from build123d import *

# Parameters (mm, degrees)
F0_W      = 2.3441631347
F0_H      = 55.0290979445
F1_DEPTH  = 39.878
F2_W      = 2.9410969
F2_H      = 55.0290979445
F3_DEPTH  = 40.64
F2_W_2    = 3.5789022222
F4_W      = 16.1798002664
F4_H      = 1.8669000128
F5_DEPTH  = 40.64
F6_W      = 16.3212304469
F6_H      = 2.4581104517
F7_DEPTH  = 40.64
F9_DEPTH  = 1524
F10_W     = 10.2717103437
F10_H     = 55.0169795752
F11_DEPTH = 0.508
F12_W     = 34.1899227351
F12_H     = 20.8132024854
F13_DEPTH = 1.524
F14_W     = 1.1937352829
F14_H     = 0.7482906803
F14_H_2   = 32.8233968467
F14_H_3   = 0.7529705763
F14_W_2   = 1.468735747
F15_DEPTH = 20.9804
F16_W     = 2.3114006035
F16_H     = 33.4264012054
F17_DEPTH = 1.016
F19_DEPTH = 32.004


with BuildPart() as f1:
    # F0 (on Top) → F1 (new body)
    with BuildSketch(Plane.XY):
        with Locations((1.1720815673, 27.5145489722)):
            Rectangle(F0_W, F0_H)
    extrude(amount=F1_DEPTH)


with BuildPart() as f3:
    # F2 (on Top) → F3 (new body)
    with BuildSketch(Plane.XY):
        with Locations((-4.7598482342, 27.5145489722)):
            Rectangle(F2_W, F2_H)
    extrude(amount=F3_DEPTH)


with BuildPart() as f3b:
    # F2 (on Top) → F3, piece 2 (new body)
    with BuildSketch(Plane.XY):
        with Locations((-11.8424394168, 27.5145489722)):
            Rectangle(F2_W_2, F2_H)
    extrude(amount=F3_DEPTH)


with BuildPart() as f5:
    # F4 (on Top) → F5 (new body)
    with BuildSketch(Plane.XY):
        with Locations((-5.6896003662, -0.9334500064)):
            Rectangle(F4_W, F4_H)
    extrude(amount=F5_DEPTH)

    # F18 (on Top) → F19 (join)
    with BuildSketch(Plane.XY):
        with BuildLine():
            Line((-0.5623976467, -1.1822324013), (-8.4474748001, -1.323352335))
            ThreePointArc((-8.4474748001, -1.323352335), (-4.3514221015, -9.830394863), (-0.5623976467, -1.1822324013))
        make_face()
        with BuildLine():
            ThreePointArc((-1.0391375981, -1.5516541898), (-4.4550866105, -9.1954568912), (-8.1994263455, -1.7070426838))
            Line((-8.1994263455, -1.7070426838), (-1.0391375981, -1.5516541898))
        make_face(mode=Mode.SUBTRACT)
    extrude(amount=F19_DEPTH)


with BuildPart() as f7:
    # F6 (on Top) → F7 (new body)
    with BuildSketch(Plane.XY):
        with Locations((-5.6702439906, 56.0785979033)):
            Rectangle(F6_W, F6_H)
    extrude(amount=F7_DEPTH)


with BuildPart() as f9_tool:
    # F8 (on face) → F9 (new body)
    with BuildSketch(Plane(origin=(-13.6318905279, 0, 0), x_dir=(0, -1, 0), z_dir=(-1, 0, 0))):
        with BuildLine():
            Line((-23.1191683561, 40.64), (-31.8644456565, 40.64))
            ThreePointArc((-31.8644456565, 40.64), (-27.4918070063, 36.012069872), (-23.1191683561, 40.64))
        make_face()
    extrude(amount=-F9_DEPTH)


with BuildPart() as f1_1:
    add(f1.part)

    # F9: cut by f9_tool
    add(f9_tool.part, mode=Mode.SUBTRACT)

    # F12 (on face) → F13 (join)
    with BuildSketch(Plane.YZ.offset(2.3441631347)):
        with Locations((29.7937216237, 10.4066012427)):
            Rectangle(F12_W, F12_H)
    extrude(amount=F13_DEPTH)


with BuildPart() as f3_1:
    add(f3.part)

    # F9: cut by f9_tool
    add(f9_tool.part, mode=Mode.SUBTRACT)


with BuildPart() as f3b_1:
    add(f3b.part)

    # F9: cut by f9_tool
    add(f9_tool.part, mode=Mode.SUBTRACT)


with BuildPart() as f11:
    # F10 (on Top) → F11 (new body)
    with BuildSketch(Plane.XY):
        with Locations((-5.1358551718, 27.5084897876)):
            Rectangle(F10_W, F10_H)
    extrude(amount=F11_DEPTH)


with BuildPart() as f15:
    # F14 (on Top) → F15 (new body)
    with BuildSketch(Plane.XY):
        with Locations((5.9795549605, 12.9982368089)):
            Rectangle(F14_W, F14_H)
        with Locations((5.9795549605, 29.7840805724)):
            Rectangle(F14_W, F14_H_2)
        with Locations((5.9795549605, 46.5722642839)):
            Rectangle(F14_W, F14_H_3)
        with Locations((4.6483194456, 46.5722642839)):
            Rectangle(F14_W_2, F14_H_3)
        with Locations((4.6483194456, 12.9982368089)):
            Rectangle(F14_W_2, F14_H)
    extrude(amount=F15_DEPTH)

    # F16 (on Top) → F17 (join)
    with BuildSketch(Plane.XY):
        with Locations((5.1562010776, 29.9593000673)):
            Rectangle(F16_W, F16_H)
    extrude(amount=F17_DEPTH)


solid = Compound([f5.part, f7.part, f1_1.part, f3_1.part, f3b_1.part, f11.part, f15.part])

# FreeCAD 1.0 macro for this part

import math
import FreeCAD as App
import Part
import Sketcher

V = App.Vector
Q = App.Units.Quantity

doc = App.newDocument("Part")
body = doc.addObject("PartDesign::Body", "Body")

sketch1 = body.newObject("Sketcher::SketchObject", "Sketch")
sketch1.AttachmentSupport = (doc.getObject("XY_Plane"), [""])
sketch1.MapMode = "FlatFace"
sketch1.addGeometry(Part.LineSegment(V(0, 55, 0), V(0, 0, 0)), False)
sketch1.addGeometry(Part.LineSegment(V(0, 0, 0), V(2.3, 0, 0)), False)
sketch1.addGeometry(Part.LineSegment(V(2.3, 0, 0), V(2.3, 55, 0)), False)
sketch1.addGeometry(Part.LineSegment(V(2.3, 55, 0), V(0, 55, 0)), False)
sketch1.addConstraint(Sketcher.Constraint("Coincident", 0, 2, 1, 1))
sketch1.addConstraint(Sketcher.Constraint("Coincident", 1, 2, 2, 1))
sketch1.addConstraint(Sketcher.Constraint("Coincident", 2, 2, 3, 1))
sketch1.addConstraint(Sketcher.Constraint("Coincident", 3, 2, 0, 1))
sketch1.addConstraint(Sketcher.Constraint("Vertical", 0))
sketch1.addConstraint(Sketcher.Constraint("Horizontal", 1))
sketch1.addConstraint(Sketcher.Constraint("Vertical", 2))
sketch1.addConstraint(Sketcher.Constraint("Horizontal", 3))
sketch1.addConstraint(Sketcher.Constraint("Coincident", 0, 2, -1, 1))
sketch1.addConstraint(Sketcher.Constraint("DistanceY", 0, 2, 0, 1, Q("2.1664999 in")))
sketch1.addConstraint(Sketcher.Constraint("DistanceX", 1, 1, 1, 2, Q("2.344163 mm")))
pad1 = body.newObject("PartDesign::Pad", "Pad")
pad1.Profile = sketch1
pad1.Length = Q("1.57 in")
body2 = doc.addObject("PartDesign::Body", "Body001")

sketch2 = body2.newObject("Sketcher::SketchObject", "Sketch001")
sketch2.AttachmentSupport = (doc.getObject("XY_Plane001"), [""])
sketch2.MapMode = "FlatFace"
sketch2.addGeometry(Part.LineSegment(V(-6.2, 55, 0), V(-6.2, 0, 0)), False)
sketch2.addGeometry(Part.LineSegment(V(-6.2, 0, 0), V(-3.3, 0, 0)), False)
sketch2.addGeometry(Part.LineSegment(V(-3.3, 0, 0), V(-3.3, 55, 0)), False)
sketch2.addGeometry(Part.LineSegment(V(-3.3, 55, 0), V(-6.2, 55, 0)), False)
sketch2.addConstraint(Sketcher.Constraint("Coincident", 0, 2, 1, 1))
sketch2.addConstraint(Sketcher.Constraint("Coincident", 1, 2, 2, 1))
sketch2.addConstraint(Sketcher.Constraint("Coincident", 2, 2, 3, 1))
sketch2.addConstraint(Sketcher.Constraint("Coincident", 3, 2, 0, 1))
sketch2.addConstraint(Sketcher.Constraint("Vertical", 0))
sketch2.addConstraint(Sketcher.Constraint("Horizontal", 1))
sketch2.addConstraint(Sketcher.Constraint("Vertical", 2))
sketch2.addConstraint(Sketcher.Constraint("Horizontal", 3))
sketch2.addConstraint(Sketcher.Constraint("PointOnObject", 0, 2, -1))
sketch2.addConstraint(Sketcher.Constraint("DistanceY", 0, 2, 0, 1, Q("2.1664999 in")))
sketch2.addConstraint(Sketcher.Constraint("DistanceX", 1, 2, -1, 1, Q("0.1295 in")))
sketch2.addConstraint(Sketcher.Constraint("DistanceX", 1, 1, 1, 2, Q("2.941097 mm")))
pad2 = body2.newObject("PartDesign::Pad", "Pad001")
pad2.Profile = sketch2
pad2.Length = Q("1.6 in")
body3 = doc.addObject("PartDesign::Body", "Body002")

sketch3 = body3.newObject("Sketcher::SketchObject", "Sketch002")
sketch3.AttachmentSupport = (doc.getObject("XY_Plane002"), [""])
sketch3.MapMode = "FlatFace"
sketch3.addGeometry(Part.LineSegment(V(-13.6, 55, 0), V(-13.6, 0, 0)), False)
sketch3.addGeometry(Part.LineSegment(V(-13.6, 0, 0), V(-10.1, 0, 0)), False)
sketch3.addGeometry(Part.LineSegment(V(-10.1, 0, 0), V(-10.1, 55, 0)), False)
sketch3.addGeometry(Part.LineSegment(V(-10.1, 55, 0), V(-13.6, 55, 0)), False)
sketch3.addConstraint(Sketcher.Constraint("Coincident", 0, 2, 1, 1))
sketch3.addConstraint(Sketcher.Constraint("Coincident", 1, 2, 2, 1))
sketch3.addConstraint(Sketcher.Constraint("Coincident", 2, 2, 3, 1))
sketch3.addConstraint(Sketcher.Constraint("Coincident", 3, 2, 0, 1))
sketch3.addConstraint(Sketcher.Constraint("Vertical", 0))
sketch3.addConstraint(Sketcher.Constraint("Horizontal", 1))
sketch3.addConstraint(Sketcher.Constraint("Vertical", 2))
sketch3.addConstraint(Sketcher.Constraint("Horizontal", 3))
sketch3.addConstraint(Sketcher.Constraint("PointOnObject", 0, 2, -1))
sketch3.addConstraint(Sketcher.Constraint("DistanceY", 0, 2, 0, 1, Q("2.1664999 in")))
sketch3.addConstraint(Sketcher.Constraint("DistanceX", 1, 1, 1, 2, Q("3.578902 mm")))
sketch3.addConstraint(Sketcher.Constraint("DistanceX", 0, 2, -1, 1, Q("13.631891 mm")))
pad3 = body3.newObject("PartDesign::Pad", "Pad002")
pad3.Profile = sketch3
pad3.Length = Q("1.6 in")
body4 = doc.addObject("PartDesign::Body", "Body003")

sketch4 = body4.newObject("Sketcher::SketchObject", "Sketch003")
sketch4.AttachmentSupport = (doc.getObject("XY_Plane003"), [""])
sketch4.MapMode = "FlatFace"
sketch4.addGeometry(Part.LineSegment(V(-13.8, 0, 0), V(-13.8, -1.9, 0)), False)
sketch4.addGeometry(Part.LineSegment(V(-13.8, -1.9, 0), V(2.4, -1.9, 0)), False)
sketch4.addGeometry(Part.LineSegment(V(2.4, -1.9, 0), V(2.4, 0, 0)), False)
sketch4.addGeometry(Part.LineSegment(V(2.4, 0, 0), V(-13.8, 0, 0)), False)
sketch4.addConstraint(Sketcher.Constraint("Coincident", 0, 2, 1, 1))
sketch4.addConstraint(Sketcher.Constraint("Coincident", 1, 2, 2, 1))
sketch4.addConstraint(Sketcher.Constraint("Coincident", 2, 2, 3, 1))
sketch4.addConstraint(Sketcher.Constraint("Coincident", 3, 2, 0, 1))
sketch4.addConstraint(Sketcher.Constraint("Vertical", 0))
sketch4.addConstraint(Sketcher.Constraint("Horizontal", 1))
sketch4.addConstraint(Sketcher.Constraint("Vertical", 2))
sketch4.addConstraint(Sketcher.Constraint("Horizontal", 3))
sketch4.addConstraint(Sketcher.Constraint("PointOnObject", 2, 2, -1))
sketch4.addConstraint(Sketcher.Constraint("DistanceX", 1, 1, 1, 2, Q("0.637 in")))
sketch4.addConstraint(Sketcher.Constraint("DistanceY", 0, 2, 0, 1, Q("0.0735 in")))
sketch4.addConstraint(Sketcher.Constraint("DistanceX", 0, 2, -1, 1, Q("0.5425 in")))
pad4 = body4.newObject("PartDesign::Pad", "Pad003")
pad4.Profile = sketch4
pad4.Length = Q("1.6 in")

sketch5 = body4.newObject("Sketcher::SketchObject", "Sketch004")
sketch5.AttachmentSupport = (doc.getObject("XY_Plane003"), [""])
sketch5.MapMode = "FlatFace"
sketch5.addGeometry(Part.LineSegment(V(-0.6, -1.2, 0), V(-8.4, -1.3, 0)), False)
sketch5.addGeometry(Part.ArcOfCircle(Part.Circle(V(-4.4, -4.6, 0), V(0, 0, 1), 5.2), math.radians(140), math.radians(402)), False)
sketch5.addGeometry(Part.LineSegment(V(-8.2, -1.7, 0), V(-1, -1.6, 0)), False)
sketch5.addGeometry(Part.ArcOfCircle(Part.Circle(V(-4.6, -4.6, 0), V(0, 0, 1), 4.6), math.radians(142), math.radians(401)), False)
sketch5.addConstraint(Sketcher.Constraint("Coincident", 0, 1, 1, 2))
sketch5.addConstraint(Sketcher.Constraint("Coincident", 1, 1, 0, 2))
sketch5.addConstraint(Sketcher.Constraint("Coincident", 2, 1, 3, 1))
sketch5.addConstraint(Sketcher.Constraint("Coincident", 3, 2, 2, 2))
sketch5.addConstraint(Sketcher.Constraint("Radius", 1, Q("5.195691 mm")))
sketch5.addConstraint(Sketcher.Constraint("Radius", 3, Q("4.631174 mm")))
sketch5.addConstraint(Sketcher.Constraint("DistanceY", 3, 2, 1, 1, Q("0.228302 mm")))
sketch5.addConstraint(Sketcher.Constraint("Distance", 0, Q("7.88634 mm")))
sketch5.addConstraint(Sketcher.Constraint("DistanceX", 3, 3, 1, 3, Q("0.111171 mm")))
sketch5.addConstraint(Sketcher.Constraint("DistanceX", 3, 3, 0, 1, Q("3.993168 mm")))
sketch5.addConstraint(Sketcher.Constraint("DistanceY", 3, 3, 0, 1, Q("3.383141 mm")))
sketch5.addConstraint(Sketcher.Constraint("DistanceX", 1, 1, 2, 1, Q("0.248048 mm")))
sketch5.addConstraint(Sketcher.Constraint("DistanceX", 1, 3, -1, 1, Q("4.444395 mm")))
sketch5.addConstraint(Sketcher.Constraint("DistanceY", 1, 3, -1, 1, Q("4.635536 mm")))
pad5 = body4.newObject("PartDesign::Pad", "Pad004")
pad5.Profile = sketch5
pad5.Length = Q("1.26 in")
body5 = doc.addObject("PartDesign::Body", "Body004")

sketch6 = body5.newObject("Sketcher::SketchObject", "Sketch005")
sketch6.AttachmentSupport = (doc.getObject("XY_Plane004"), [""])
sketch6.MapMode = "FlatFace"
sketch6.addGeometry(Part.LineSegment(V(-13.8, 57.3, 0), V(-13.8, 54.8, 0)), False)
sketch6.addGeometry(Part.LineSegment(V(-13.8, 54.8, 0), V(2.5, 54.8, 0)), False)
sketch6.addGeometry(Part.LineSegment(V(2.5, 54.8, 0), V(2.5, 57.3, 0)), False)
sketch6.addGeometry(Part.LineSegment(V(2.5, 57.3, 0), V(-13.8, 57.3, 0)), False)
sketch6.addConstraint(Sketcher.Constraint("Coincident", 0, 2, 1, 1))
sketch6.addConstraint(Sketcher.Constraint("Coincident", 1, 2, 2, 1))
sketch6.addConstraint(Sketcher.Constraint("Coincident", 2, 2, 3, 1))
sketch6.addConstraint(Sketcher.Constraint("Coincident", 3, 2, 0, 1))
sketch6.addConstraint(Sketcher.Constraint("Vertical", 0))
sketch6.addConstraint(Sketcher.Constraint("Horizontal", 1))
sketch6.addConstraint(Sketcher.Constraint("Vertical", 2))
sketch6.addConstraint(Sketcher.Constraint("Horizontal", 3))
sketch6.addConstraint(Sketcher.Constraint("DistanceX", 1, 1, 1, 2, Q("16.32123 mm")))
sketch6.addConstraint(Sketcher.Constraint("DistanceY", 0, 2, 0, 1, Q("2.45811 mm")))
sketch6.addConstraint(Sketcher.Constraint("DistanceX", 0, 2, -1, 1, Q("13.830859 mm")))
sketch6.addConstraint(Sketcher.Constraint("DistanceY", -1, 1, 0, 2, Q("54.849543 mm")))
pad6 = body5.newObject("PartDesign::Pad", "Pad005")
pad6.Profile = sketch6
pad6.Length = Q("1.6 in")
body6 = doc.addObject("PartDesign::Body", "Body005")

sketch7 = body6.newObject("Sketcher::SketchObject", "Sketch006")
sketch7.AttachmentSupport = (doc.getObject("YZ_Plane005"), [""])
sketch7.MapMode = "FlatFace"
sketch7.AttachmentOffset = App.Placement(V(0, 0, -13.631891), App.Rotation())
sketch7.addGeometry(Part.LineSegment(V(23.1, 40.6, 0), V(31.9, 40.6, 0)), False)
sketch7.addGeometry(Part.ArcOfCircle(Part.Circle(V(27.5, 40.4, 0), V(0, 0, 1), 4.4), math.radians(177), math.radians(363)), False)
sketch7.addConstraint(Sketcher.Constraint("Coincident", 0, 1, 1, 1))
sketch7.addConstraint(Sketcher.Constraint("Coincident", 1, 2, 0, 2))
sketch7.addConstraint(Sketcher.Constraint("Horizontal", 0))
sketch7.addConstraint(Sketcher.Constraint("DistanceY", -1, 1, 0, 1, Q("1.6 in")))
sketch7.addConstraint(Sketcher.Constraint("Radius", 1, Q("4.37968 mm")))
sketch7.addConstraint(Sketcher.Constraint("DistanceX", 0, 1, 0, 2, Q("8.745277 mm")))
sketch7.addConstraint(Sketcher.Constraint("DistanceX", -1, 1, 0, 1, Q("23.119168 mm")))
pad7 = body6.newObject("PartDesign::Pad", "Pad006")
pad7.Profile = sketch7
pad7.Length = Q("60 in")
doc.recompute()

body7 = doc.addObject("PartDesign::Body", "Body006")
body7.BaseFeature = body6
boolean = body.newObject("PartDesign::Boolean", "Boolean")
boolean.Type = "Cut"
boolean.addObjects([body7])
doc.recompute()

sketch8 = body.newObject("Sketcher::SketchObject", "Sketch007")
sketch8.AttachmentSupport = (doc.getObject("YZ_Plane"), [""])
sketch8.MapMode = "FlatFace"
sketch8.AttachmentOffset = App.Placement(V(0, 0, 2.344163), App.Rotation())
sketch8.addGeometry(Part.LineSegment(V(13, 21, 0), V(13, 0, 0)), False)
sketch8.addGeometry(Part.LineSegment(V(13, 0, 0), V(47, 0, 0)), False)
sketch8.addGeometry(Part.LineSegment(V(47, 0, 0), V(47, 21, 0)), False)
sketch8.addGeometry(Part.LineSegment(V(47, 21, 0), V(13, 21, 0)), False)
sketch8.addConstraint(Sketcher.Constraint("Coincident", 0, 2, 1, 1))
sketch8.addConstraint(Sketcher.Constraint("Coincident", 1, 2, 2, 1))
sketch8.addConstraint(Sketcher.Constraint("Coincident", 2, 2, 3, 1))
sketch8.addConstraint(Sketcher.Constraint("Coincident", 3, 2, 0, 1))
sketch8.addConstraint(Sketcher.Constraint("Vertical", 0))
sketch8.addConstraint(Sketcher.Constraint("Horizontal", 1))
sketch8.addConstraint(Sketcher.Constraint("Vertical", 2))
sketch8.addConstraint(Sketcher.Constraint("Horizontal", 3))
sketch8.addConstraint(Sketcher.Constraint("PointOnObject", 0, 2, -1))
sketch8.addConstraint(Sketcher.Constraint("DistanceX", 1, 1, 1, 2, Q("34.189923 mm")))
sketch8.addConstraint(Sketcher.Constraint("DistanceY", 0, 2, 0, 1, Q("20.813202 mm")))
sketch8.addConstraint(Sketcher.Constraint("DistanceX", -1, 1, 0, 2, Q("12.69876 mm")))
pad8 = body.newObject("PartDesign::Pad", "Pad007")
pad8.Profile = sketch8
pad8.Length = Q("0.06 in")
doc.recompute()

body8 = doc.addObject("PartDesign::Body", "Body007")
body8.BaseFeature = body6
boolean2 = body2.newObject("PartDesign::Boolean", "Boolean001")
boolean2.Type = "Cut"
boolean2.addObjects([body8])
doc.recompute()

boolean3 = body3.newObject("PartDesign::Boolean", "Boolean002")
boolean3.Type = "Cut"
boolean3.addObjects([body6])
body9 = doc.addObject("PartDesign::Body", "Body008")

sketch9 = body9.newObject("Sketcher::SketchObject", "Sketch008")
sketch9.AttachmentSupport = (doc.getObject("XY_Plane008"), [""])
sketch9.MapMode = "FlatFace"
sketch9.addGeometry(Part.LineSegment(V(-10, 55, 0), V(-10, 0, 0)), False)
sketch9.addGeometry(Part.LineSegment(V(-10, 0, 0), V(0, 0, 0)), False)
sketch9.addGeometry(Part.LineSegment(V(0, 0, 0), V(0, 55, 0)), False)
sketch9.addGeometry(Part.LineSegment(V(0, 55, 0), V(-10, 55, 0)), False)
sketch9.addConstraint(Sketcher.Constraint("Coincident", 0, 2, 1, 1))
sketch9.addConstraint(Sketcher.Constraint("Coincident", 1, 2, 2, 1))
sketch9.addConstraint(Sketcher.Constraint("Coincident", 2, 2, 3, 1))
sketch9.addConstraint(Sketcher.Constraint("Coincident", 3, 2, 0, 1))
sketch9.addConstraint(Sketcher.Constraint("Vertical", 0))
sketch9.addConstraint(Sketcher.Constraint("Horizontal", 1))
sketch9.addConstraint(Sketcher.Constraint("Vertical", 2))
sketch9.addConstraint(Sketcher.Constraint("Horizontal", 3))
sketch9.addConstraint(Sketcher.Constraint("Coincident", 1, 2, -1, 1))
sketch9.addConstraint(Sketcher.Constraint("DistanceX", 1, 1, 1, 2, Q("10.27171 mm")))
sketch9.addConstraint(Sketcher.Constraint("DistanceY", 0, 2, 0, 1, Q("55.01698 mm")))
pad9 = body9.newObject("PartDesign::Pad", "Pad008")
pad9.Profile = sketch9
pad9.Length = Q("0.02 in")
body10 = doc.addObject("PartDesign::Body", "Body009")

sketch10 = body10.newObject("Sketcher::SketchObject", "Sketch009")
sketch10.AttachmentSupport = (doc.getObject("XY_Plane009"), [""])
sketch10.MapMode = "FlatFace"
sketch10.addGeometry(Part.LineSegment(V(6.6, 12.6, 0), V(6.6, 46.9, 0)), False)
sketch10.addGeometry(Part.LineSegment(V(6.6, 46.9, 0), V(3.9, 46.9, 0)), False)
sketch10.addGeometry(Part.LineSegment(V(3.9, 46.9, 0), V(3.9, 46.2, 0)), False)
sketch10.addGeometry(Part.LineSegment(V(3.9, 46.2, 0), V(5.4, 46.2, 0)), False)
sketch10.addGeometry(Part.LineSegment(V(5.4, 46.2, 0), V(5.4, 13.4, 0)), False)
sketch10.addGeometry(Part.LineSegment(V(5.4, 13.4, 0), V(3.9, 13.4, 0)), False)
sketch10.addGeometry(Part.LineSegment(V(3.9, 13.4, 0), V(3.9, 12.6, 0)), False)
sketch10.addGeometry(Part.LineSegment(V(3.9, 12.6, 0), V(6.6, 12.6, 0)), False)
sketch10.addConstraint(Sketcher.Constraint("Coincident", 0, 2, 1, 1))
sketch10.addConstraint(Sketcher.Constraint("Coincident", 1, 2, 2, 1))
sketch10.addConstraint(Sketcher.Constraint("Coincident", 2, 2, 3, 1))
sketch10.addConstraint(Sketcher.Constraint("Coincident", 3, 2, 4, 1))
sketch10.addConstraint(Sketcher.Constraint("Coincident", 4, 2, 5, 1))
sketch10.addConstraint(Sketcher.Constraint("Coincident", 5, 2, 6, 1))
sketch10.addConstraint(Sketcher.Constraint("Coincident", 6, 2, 7, 1))
sketch10.addConstraint(Sketcher.Constraint("Coincident", 7, 2, 0, 1))
sketch10.addConstraint(Sketcher.Constraint("Vertical", 0))
sketch10.addConstraint(Sketcher.Constraint("Horizontal", 1))
sketch10.addConstraint(Sketcher.Constraint("Vertical", 2))
sketch10.addConstraint(Sketcher.Constraint("Horizontal", 3))
sketch10.addConstraint(Sketcher.Constraint("Vertical", 4))
sketch10.addConstraint(Sketcher.Constraint("Horizontal", 5))
sketch10.addConstraint(Sketcher.Constraint("Vertical", 6))
sketch10.addConstraint(Sketcher.Constraint("Horizontal", 7))
sketch10.addConstraint(Sketcher.Constraint("Vertical", 2, 2, 5, 2))
sketch10.addConstraint(Sketcher.Constraint("DistanceX", 1, 2, 1, 1, Q("2.662471 mm")))
sketch10.addConstraint(Sketcher.Constraint("DistanceY", 0, 1, 0, 2, Q("34.324658 mm")))
sketch10.addConstraint(Sketcher.Constraint("DistanceY", 2, 2, 2, 1, Q("0.752971 mm")))
sketch10.addConstraint(Sketcher.Constraint("DistanceY", 6, 2, 6, 1, Q("0.748291 mm")))
sketch10.addConstraint(Sketcher.Constraint("DistanceX", 3, 1, 3, 2, Q("1.468736 mm")))
sketch10.addConstraint(Sketcher.Constraint("DistanceY", -1, 1, 0, 2, Q("46.94875 mm")))
sketch10.addConstraint(Sketcher.Constraint("DistanceX", -1, 1, 1, 2, Q("3.913952 mm")))
pad10 = body10.newObject("PartDesign::Pad", "Pad009")
pad10.Profile = sketch10
pad10.Length = Q("0.826 in")

sketch11 = body10.newObject("Sketcher::SketchObject", "Sketch010")
sketch11.AttachmentSupport = (doc.getObject("XY_Plane009"), [""])
sketch11.MapMode = "FlatFace"
sketch11.addGeometry(Part.LineSegment(V(4, 46.7, 0), V(4, 13.2, 0)), False)
sketch11.addGeometry(Part.LineSegment(V(4, 13.2, 0), V(6.3, 13.2, 0)), False)
sketch11.addGeometry(Part.LineSegment(V(6.3, 13.2, 0), V(6.3, 46.7, 0)), False)
sketch11.addGeometry(Part.LineSegment(V(6.3, 46.7, 0), V(4, 46.7, 0)), False)
sketch11.addConstraint(Sketcher.Constraint("Coincident", 0, 2, 1, 1))
sketch11.addConstraint(Sketcher.Constraint("Coincident", 1, 2, 2, 1))
sketch11.addConstraint(Sketcher.Constraint("Coincident", 2, 2, 3, 1))
sketch11.addConstraint(Sketcher.Constraint("Coincident", 3, 2, 0, 1))
sketch11.addConstraint(Sketcher.Constraint("Vertical", 0))
sketch11.addConstraint(Sketcher.Constraint("Horizontal", 1))
sketch11.addConstraint(Sketcher.Constraint("Vertical", 2))
sketch11.addConstraint(Sketcher.Constraint("Horizontal", 3))
sketch11.addConstraint(Sketcher.Constraint("DistanceX", 1, 1, 1, 2, Q("0.091 in")))
sketch11.addConstraint(Sketcher.Constraint("DistanceY", 0, 2, 0, 1, Q("1.316 in")))
sketch11.addConstraint(Sketcher.Constraint("DistanceX", -1, 1, 0, 2, Q("0.1575 in")))
sketch11.addConstraint(Sketcher.Constraint("DistanceY", -1, 1, 0, 2, Q("0.5215 in")))
pad11 = body10.newObject("PartDesign::Pad", "Pad010")
pad11.Profile = sketch11
pad11.Length = Q("0.04 in")

doc.recompute()
